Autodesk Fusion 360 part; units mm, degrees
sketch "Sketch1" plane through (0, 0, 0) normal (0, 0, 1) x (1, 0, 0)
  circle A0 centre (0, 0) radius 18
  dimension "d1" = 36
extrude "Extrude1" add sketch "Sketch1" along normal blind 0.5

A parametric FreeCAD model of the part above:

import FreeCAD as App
import Part
import Sketcher
Q = App.Units.Quantity

doc = App.newDocument("Part")
body = doc.addObject("PartDesign::Body", "Body")

sketch1 = body.newObject("Sketcher::SketchObject", "Sketch")
sketch1.AttachmentSupport = (doc.getObject("XY_Plane"), [""])
sketch1.MapMode = "FlatFace"
sketch1.addGeometry(Part.Circle(App.Vector(0, 0, 0), App.Vector(0, 0, 1), 18), False)
sketch1.addConstraint([
    Sketcher.Constraint("Coincident", 0, 3, -1, 1),
    Sketcher.Constraint("Diameter", 0, Q("36 mm")),
])
pad1 = body.newObject("PartDesign::Pad", "Pad")
pad1.Profile = sketch1
pad1.Length = 0.5

doc.recompute()
